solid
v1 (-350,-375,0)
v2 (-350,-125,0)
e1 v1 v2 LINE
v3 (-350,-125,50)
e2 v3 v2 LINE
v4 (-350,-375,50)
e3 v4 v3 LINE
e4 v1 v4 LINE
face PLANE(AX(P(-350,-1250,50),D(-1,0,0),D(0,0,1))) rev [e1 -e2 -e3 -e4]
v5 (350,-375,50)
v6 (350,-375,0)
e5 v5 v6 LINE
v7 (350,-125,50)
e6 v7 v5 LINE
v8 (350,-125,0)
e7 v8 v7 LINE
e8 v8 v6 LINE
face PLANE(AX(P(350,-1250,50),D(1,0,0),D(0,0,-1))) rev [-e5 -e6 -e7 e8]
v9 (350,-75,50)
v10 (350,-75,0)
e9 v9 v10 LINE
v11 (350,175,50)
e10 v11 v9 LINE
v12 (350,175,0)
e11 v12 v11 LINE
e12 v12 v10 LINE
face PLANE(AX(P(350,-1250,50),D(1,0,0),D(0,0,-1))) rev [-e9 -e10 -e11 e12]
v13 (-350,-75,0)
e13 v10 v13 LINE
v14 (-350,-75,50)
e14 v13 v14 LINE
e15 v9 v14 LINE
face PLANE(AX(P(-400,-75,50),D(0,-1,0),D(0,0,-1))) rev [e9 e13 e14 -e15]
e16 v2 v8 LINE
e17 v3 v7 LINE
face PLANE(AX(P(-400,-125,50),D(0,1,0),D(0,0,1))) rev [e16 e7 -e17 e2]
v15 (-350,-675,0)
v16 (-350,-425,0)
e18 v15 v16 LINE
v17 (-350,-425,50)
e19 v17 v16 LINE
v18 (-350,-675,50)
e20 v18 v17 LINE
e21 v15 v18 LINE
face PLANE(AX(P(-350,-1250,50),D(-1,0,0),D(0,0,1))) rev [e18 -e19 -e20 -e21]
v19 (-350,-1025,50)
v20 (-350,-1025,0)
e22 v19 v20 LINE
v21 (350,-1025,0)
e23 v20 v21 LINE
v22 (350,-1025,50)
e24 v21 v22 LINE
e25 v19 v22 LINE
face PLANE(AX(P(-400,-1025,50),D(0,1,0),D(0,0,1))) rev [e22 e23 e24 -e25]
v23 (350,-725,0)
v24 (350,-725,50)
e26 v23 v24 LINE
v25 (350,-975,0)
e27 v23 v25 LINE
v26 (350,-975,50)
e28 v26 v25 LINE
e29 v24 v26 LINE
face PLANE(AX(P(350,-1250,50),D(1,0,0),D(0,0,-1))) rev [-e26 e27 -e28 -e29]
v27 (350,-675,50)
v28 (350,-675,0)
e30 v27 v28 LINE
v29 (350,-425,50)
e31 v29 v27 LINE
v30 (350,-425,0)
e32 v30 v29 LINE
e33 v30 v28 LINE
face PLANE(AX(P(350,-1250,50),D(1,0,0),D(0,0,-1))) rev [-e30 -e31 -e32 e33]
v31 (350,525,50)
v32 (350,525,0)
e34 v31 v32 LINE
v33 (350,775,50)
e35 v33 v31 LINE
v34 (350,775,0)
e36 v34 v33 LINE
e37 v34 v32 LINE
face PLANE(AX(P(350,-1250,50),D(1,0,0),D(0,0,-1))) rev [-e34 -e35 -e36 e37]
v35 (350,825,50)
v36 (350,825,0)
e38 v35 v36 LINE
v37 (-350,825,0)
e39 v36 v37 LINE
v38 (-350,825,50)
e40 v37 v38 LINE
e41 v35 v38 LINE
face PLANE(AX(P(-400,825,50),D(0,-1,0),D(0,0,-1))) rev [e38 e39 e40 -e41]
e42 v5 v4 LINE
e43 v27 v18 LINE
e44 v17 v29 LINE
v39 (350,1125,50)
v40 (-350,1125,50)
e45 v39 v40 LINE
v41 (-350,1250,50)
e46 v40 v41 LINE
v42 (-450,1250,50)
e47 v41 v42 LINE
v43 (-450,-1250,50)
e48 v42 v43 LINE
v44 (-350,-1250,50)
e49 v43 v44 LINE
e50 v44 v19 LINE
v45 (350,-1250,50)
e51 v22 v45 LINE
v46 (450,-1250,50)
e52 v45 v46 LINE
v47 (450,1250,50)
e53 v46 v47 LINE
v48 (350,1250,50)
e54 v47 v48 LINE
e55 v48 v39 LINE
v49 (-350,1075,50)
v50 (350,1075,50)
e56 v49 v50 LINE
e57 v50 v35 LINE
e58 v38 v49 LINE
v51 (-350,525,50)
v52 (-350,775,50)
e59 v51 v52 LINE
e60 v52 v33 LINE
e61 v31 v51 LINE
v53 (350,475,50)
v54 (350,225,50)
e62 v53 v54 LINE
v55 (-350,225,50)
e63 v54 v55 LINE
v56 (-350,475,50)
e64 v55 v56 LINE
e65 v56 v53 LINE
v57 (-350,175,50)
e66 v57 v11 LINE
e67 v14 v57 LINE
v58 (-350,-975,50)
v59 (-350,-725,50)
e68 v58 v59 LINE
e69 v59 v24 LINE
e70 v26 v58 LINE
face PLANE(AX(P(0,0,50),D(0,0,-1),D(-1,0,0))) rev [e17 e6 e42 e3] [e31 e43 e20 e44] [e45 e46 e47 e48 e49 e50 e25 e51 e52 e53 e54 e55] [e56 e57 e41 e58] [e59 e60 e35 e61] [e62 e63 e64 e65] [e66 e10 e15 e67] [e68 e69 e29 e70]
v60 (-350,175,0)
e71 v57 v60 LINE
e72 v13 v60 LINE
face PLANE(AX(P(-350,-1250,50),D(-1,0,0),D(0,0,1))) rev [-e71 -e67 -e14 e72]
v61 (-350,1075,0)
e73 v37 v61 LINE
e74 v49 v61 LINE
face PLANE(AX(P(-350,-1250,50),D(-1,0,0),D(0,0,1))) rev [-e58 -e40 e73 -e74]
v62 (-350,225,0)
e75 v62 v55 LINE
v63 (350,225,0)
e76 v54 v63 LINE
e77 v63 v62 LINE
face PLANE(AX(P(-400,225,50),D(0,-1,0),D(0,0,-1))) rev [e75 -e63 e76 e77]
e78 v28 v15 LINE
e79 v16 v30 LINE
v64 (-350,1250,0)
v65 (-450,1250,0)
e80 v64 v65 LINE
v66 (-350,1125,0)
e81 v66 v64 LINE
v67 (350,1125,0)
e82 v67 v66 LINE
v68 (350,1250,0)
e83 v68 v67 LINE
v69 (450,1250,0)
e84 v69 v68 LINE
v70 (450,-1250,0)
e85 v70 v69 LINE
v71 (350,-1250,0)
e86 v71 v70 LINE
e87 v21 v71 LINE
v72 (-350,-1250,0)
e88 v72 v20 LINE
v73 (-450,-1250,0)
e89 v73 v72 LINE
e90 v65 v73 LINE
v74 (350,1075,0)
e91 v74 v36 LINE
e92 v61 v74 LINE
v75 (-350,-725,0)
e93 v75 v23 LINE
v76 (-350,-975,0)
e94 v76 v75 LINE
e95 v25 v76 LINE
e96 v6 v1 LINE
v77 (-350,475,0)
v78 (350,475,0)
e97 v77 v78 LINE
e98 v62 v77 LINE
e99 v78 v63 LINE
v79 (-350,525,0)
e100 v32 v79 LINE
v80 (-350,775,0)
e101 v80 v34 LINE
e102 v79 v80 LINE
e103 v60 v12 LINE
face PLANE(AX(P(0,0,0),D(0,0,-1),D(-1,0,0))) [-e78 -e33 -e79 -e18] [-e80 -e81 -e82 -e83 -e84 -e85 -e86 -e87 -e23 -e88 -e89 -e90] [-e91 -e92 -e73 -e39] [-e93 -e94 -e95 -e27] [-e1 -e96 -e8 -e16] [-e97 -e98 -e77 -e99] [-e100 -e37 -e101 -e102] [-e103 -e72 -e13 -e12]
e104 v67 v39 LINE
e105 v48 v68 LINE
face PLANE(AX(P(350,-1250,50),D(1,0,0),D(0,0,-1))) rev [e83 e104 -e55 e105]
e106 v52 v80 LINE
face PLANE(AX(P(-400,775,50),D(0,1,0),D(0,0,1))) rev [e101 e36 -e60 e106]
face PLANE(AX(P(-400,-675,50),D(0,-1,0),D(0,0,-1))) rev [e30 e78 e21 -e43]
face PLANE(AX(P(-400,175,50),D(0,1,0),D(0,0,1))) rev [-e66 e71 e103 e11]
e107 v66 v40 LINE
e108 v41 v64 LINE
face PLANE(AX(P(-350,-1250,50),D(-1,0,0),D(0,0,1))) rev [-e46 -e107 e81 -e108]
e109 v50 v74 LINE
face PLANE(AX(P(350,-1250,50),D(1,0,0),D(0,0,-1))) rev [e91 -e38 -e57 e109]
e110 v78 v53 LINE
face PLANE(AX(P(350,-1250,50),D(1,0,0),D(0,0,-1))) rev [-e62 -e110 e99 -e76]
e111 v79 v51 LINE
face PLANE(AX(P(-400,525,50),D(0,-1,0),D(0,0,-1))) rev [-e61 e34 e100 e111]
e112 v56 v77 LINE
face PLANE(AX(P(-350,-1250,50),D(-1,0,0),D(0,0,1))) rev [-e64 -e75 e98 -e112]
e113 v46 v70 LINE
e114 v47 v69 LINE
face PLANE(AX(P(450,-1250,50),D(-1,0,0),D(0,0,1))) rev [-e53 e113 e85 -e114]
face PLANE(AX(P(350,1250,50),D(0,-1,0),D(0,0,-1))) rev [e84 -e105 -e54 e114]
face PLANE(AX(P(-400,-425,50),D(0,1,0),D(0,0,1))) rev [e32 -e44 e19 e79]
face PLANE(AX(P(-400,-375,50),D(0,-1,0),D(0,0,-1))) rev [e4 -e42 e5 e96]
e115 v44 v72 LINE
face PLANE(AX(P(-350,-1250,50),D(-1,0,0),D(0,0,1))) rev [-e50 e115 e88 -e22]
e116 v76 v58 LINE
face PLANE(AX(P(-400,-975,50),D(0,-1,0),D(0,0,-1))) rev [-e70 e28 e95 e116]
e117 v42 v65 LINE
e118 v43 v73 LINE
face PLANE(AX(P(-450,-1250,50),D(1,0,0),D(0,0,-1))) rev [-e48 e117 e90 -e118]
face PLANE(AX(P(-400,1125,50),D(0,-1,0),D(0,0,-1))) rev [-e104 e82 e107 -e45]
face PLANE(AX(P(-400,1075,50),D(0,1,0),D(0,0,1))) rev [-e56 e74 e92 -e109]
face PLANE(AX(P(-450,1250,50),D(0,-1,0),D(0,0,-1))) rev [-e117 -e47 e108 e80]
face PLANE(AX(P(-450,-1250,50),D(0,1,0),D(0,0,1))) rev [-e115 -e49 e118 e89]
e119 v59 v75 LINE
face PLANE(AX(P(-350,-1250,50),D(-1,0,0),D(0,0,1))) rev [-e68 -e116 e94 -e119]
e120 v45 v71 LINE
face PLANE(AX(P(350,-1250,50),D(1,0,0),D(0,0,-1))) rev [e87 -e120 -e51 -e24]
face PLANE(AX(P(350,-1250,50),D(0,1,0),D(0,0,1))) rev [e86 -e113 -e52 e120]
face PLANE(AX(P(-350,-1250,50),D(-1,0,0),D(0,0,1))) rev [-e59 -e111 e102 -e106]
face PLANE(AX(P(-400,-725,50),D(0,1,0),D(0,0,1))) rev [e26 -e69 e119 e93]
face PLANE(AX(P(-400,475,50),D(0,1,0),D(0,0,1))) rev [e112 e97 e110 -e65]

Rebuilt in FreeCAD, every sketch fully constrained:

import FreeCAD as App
import Part
import Sketcher
Q = App.Units.Quantity

doc = App.newDocument("Part")
body = doc.addObject("PartDesign::Body", "Body")

sketch1 = body.newObject("Sketcher::SketchObject", "Sketch")
sketch1.AttachmentSupport = (doc.getObject("XY_Plane"), [""])
sketch1.MapMode = "FlatFace"
sketch1.addGeometry(Part.LineSegment(App.Vector(-450, 1250, 0), App.Vector(-450, -1250, 0)), False)
sketch1.addGeometry(Part.LineSegment(App.Vector(-450, -1250, 0), App.Vector(-350, -1250, 0)), False)
sketch1.addGeometry(Part.LineSegment(App.Vector(-350, -1250, 0), App.Vector(-350, 1250, 0)), False)
sketch1.addGeometry(Part.LineSegment(App.Vector(-350, 1250, 0), App.Vector(-450, 1250, 0)), False)
sketch1.addConstraint(Sketcher.Constraint("Coincident", 0, 2, 1, 1))
sketch1.addConstraint(Sketcher.Constraint("Coincident", 1, 2, 2, 1))
sketch1.addConstraint(Sketcher.Constraint("Coincident", 2, 2, 3, 1))
sketch1.addConstraint(Sketcher.Constraint("Coincident", 3, 2, 0, 1))
sketch1.addConstraint(Sketcher.Constraint("Vertical", 0))
sketch1.addConstraint(Sketcher.Constraint("Horizontal", 1))
sketch1.addConstraint(Sketcher.Constraint("Vertical", 2))
sketch1.addConstraint(Sketcher.Constraint("Horizontal", 3))
sketch1.addConstraint(Sketcher.Constraint("DistanceX", 1, 1, 1, 2, Q("100 mm")))
sketch1.addConstraint(Sketcher.Constraint("DistanceY", 0, 2, 0, 1, Q("2500 mm")))
sketch1.addConstraint(Sketcher.Constraint("DistanceX", 0, 2, -1, 1, Q("450 mm")))
sketch1.addConstraint(Sketcher.Constraint("DistanceY", 0, 2, -1, 1, Q("1250 mm")))
pad1 = body.newObject("PartDesign::Pad", "Pad")
pad1.Profile = sketch1
pad1.Length = 50
body2 = doc.addObject("PartDesign::Body", "Body001")

sketch2 = body2.newObject("Sketcher::SketchObject", "Sketch001")
sketch2.AttachmentSupport = (doc.getObject("XY_Plane001"), [""])
sketch2.MapMode = "FlatFace"
sketch2.addGeometry(Part.LineSegment(App.Vector(350, 1250, 0), App.Vector(350, -1250, 0)), False)
sketch2.addGeometry(Part.LineSegment(App.Vector(350, -1250, 0), App.Vector(450, -1250, 0)), False)
sketch2.addGeometry(Part.LineSegment(App.Vector(450, -1250, 0), App.Vector(450, 1250, 0)), False)
sketch2.addGeometry(Part.LineSegment(App.Vector(450, 1250, 0), App.Vector(350, 1250, 0)), False)
sketch2.addConstraint(Sketcher.Constraint("Coincident", 0, 2, 1, 1))
sketch2.addConstraint(Sketcher.Constraint("Coincident", 1, 2, 2, 1))
sketch2.addConstraint(Sketcher.Constraint("Coincident", 2, 2, 3, 1))
sketch2.addConstraint(Sketcher.Constraint("Coincident", 3, 2, 0, 1))
sketch2.addConstraint(Sketcher.Constraint("Vertical", 0))
sketch2.addConstraint(Sketcher.Constraint("Horizontal", 1))
sketch2.addConstraint(Sketcher.Constraint("Vertical", 2))
sketch2.addConstraint(Sketcher.Constraint("Horizontal", 3))
sketch2.addConstraint(Sketcher.Constraint("DistanceX", 1, 1, 1, 2, Q("100 mm")))
sketch2.addConstraint(Sketcher.Constraint("DistanceY", 0, 2, 0, 1, Q("2500 mm")))
sketch2.addConstraint(Sketcher.Constraint("DistanceX", -1, 1, 0, 2, Q("350 mm")))
sketch2.addConstraint(Sketcher.Constraint("DistanceY", 0, 2, -1, 1, Q("1250 mm")))
pad2 = body2.newObject("PartDesign::Pad", "Pad001")
pad2.Profile = sketch2
pad2.Length = 50
body.AllowCompound = True
doc.recompute()

boolean = body.newObject("PartDesign::Boolean", "Boolean")
boolean.Type = "Fuse"
boolean.addObjects([body2])

sketch3 = body.newObject("Sketcher::SketchObject", "Sketch002")
sketch3.AttachmentSupport = (doc.getObject("XY_Plane"), [""])
sketch3.MapMode = "FlatFace"
sketch3.addGeometry(Part.LineSegment(App.Vector(-400, 1125, 0), App.Vector(-400, 1075, 0)), False)
sketch3.addGeometry(Part.LineSegment(App.Vector(-400, 1075, 0), App.Vector(400, 1075, 0)), False)
sketch3.addGeometry(Part.LineSegment(App.Vector(400, 1075, 0), App.Vector(400, 1125, 0)), False)
sketch3.addGeometry(Part.LineSegment(App.Vector(400, 1125, 0), App.Vector(-400, 1125, 0)), False)
sketch3.addConstraint(Sketcher.Constraint("Coincident", 0, 2, 1, 1))
sketch3.addConstraint(Sketcher.Constraint("Coincident", 1, 2, 2, 1))
sketch3.addConstraint(Sketcher.Constraint("Coincident", 2, 2, 3, 1))
sketch3.addConstraint(Sketcher.Constraint("Coincident", 3, 2, 0, 1))
sketch3.addConstraint(Sketcher.Constraint("Vertical", 0))
sketch3.addConstraint(Sketcher.Constraint("Horizontal", 1))
sketch3.addConstraint(Sketcher.Constraint("Vertical", 2))
sketch3.addConstraint(Sketcher.Constraint("Horizontal", 3))
sketch3.addConstraint(Sketcher.Constraint("DistanceX", 1, 1, 1, 2, Q("800 mm")))
sketch3.addConstraint(Sketcher.Constraint("DistanceY", 0, 2, 0, 1, Q("50 mm")))
sketch3.addConstraint(Sketcher.Constraint("DistanceX", 0, 2, -1, 1, Q("400 mm")))
sketch3.addConstraint(Sketcher.Constraint("DistanceY", -1, 1, 0, 2, Q("1075 mm")))
pad3 = body.newObject("PartDesign::Pad", "Pad002")
pad3.Profile = sketch3
pad3.Length = 50

sketch4 = body.newObject("Sketcher::SketchObject", "Sketch003")
sketch4.AttachmentSupport = (doc.getObject("XY_Plane"), [""])
sketch4.MapMode = "FlatFace"
sketch4.addGeometry(Part.LineSegment(App.Vector(-400, 825, 0), App.Vector(-400, 775, 0)), False)
sketch4.addGeometry(Part.LineSegment(App.Vector(-400, 775, 0), App.Vector(400, 775, 0)), False)
sketch4.addGeometry(Part.LineSegment(App.Vector(400, 775, 0), App.Vector(400, 825, 0)), False)
sketch4.addGeometry(Part.LineSegment(App.Vector(400, 825, 0), App.Vector(-400, 825, 0)), False)
sketch4.addConstraint(Sketcher.Constraint("Coincident", 0, 2, 1, 1))
sketch4.addConstraint(Sketcher.Constraint("Coincident", 1, 2, 2, 1))
sketch4.addConstraint(Sketcher.Constraint("Coincident", 2, 2, 3, 1))
sketch4.addConstraint(Sketcher.Constraint("Coincident", 3, 2, 0, 1))
sketch4.addConstraint(Sketcher.Constraint("Vertical", 0))
sketch4.addConstraint(Sketcher.Constraint("Horizontal", 1))
sketch4.addConstraint(Sketcher.Constraint("Vertical", 2))
sketch4.addConstraint(Sketcher.Constraint("Horizontal", 3))
sketch4.addConstraint(Sketcher.Constraint("DistanceX", 1, 1, 1, 2, Q("800 mm")))
sketch4.addConstraint(Sketcher.Constraint("DistanceY", 0, 2, 0, 1, Q("50 mm")))
sketch4.addConstraint(Sketcher.Constraint("DistanceX", 0, 2, -1, 1, Q("400 mm")))
sketch4.addConstraint(Sketcher.Constraint("DistanceY", -1, 1, 0, 2, Q("775 mm")))
pad4 = body.newObject("PartDesign::Pad", "Pad003")
pad4.Profile = sketch4
pad4.Length = 50

sketch5 = body.newObject("Sketcher::SketchObject", "Sketch004")
sketch5.AttachmentSupport = (doc.getObject("XY_Plane"), [""])
sketch5.MapMode = "FlatFace"
sketch5.addGeometry(Part.LineSegment(App.Vector(-400, 525, 0), App.Vector(-400, 475, 0)), False)
sketch5.addGeometry(Part.LineSegment(App.Vector(-400, 475, 0), App.Vector(400, 475, 0)), False)
sketch5.addGeometry(Part.LineSegment(App.Vector(400, 475, 0), App.Vector(400, 525, 0)), False)
sketch5.addGeometry(Part.LineSegment(App.Vector(400, 525, 0), App.Vector(-400, 525, 0)), False)
sketch5.addConstraint(Sketcher.Constraint("Coincident", 0, 2, 1, 1))
sketch5.addConstraint(Sketcher.Constraint("Coincident", 1, 2, 2, 1))
sketch5.addConstraint(Sketcher.Constraint("Coincident", 2, 2, 3, 1))
sketch5.addConstraint(Sketcher.Constraint("Coincident", 3, 2, 0, 1))
sketch5.addConstraint(Sketcher.Constraint("Vertical", 0))
sketch5.addConstraint(Sketcher.Constraint("Horizontal", 1))
sketch5.addConstraint(Sketcher.Constraint("Vertical", 2))
sketch5.addConstraint(Sketcher.Constraint("Horizontal", 3))
sketch5.addConstraint(Sketcher.Constraint("DistanceX", 1, 1, 1, 2, Q("800 mm")))
sketch5.addConstraint(Sketcher.Constraint("DistanceY", 0, 2, 0, 1, Q("50 mm")))
sketch5.addConstraint(Sketcher.Constraint("DistanceX", 0, 2, -1, 1, Q("400 mm")))
sketch5.addConstraint(Sketcher.Constraint("DistanceY", -1, 1, 0, 2, Q("475 mm")))
pad5 = body.newObject("PartDesign::Pad", "Pad004")
pad5.Profile = sketch5
pad5.Length = 50

sketch6 = body.newObject("Sketcher::SketchObject", "Sketch005")
sketch6.AttachmentSupport = (doc.getObject("XY_Plane"), [""])
sketch6.MapMode = "FlatFace"
sketch6.addGeometry(Part.LineSegment(App.Vector(-400, 225, 0), App.Vector(-400, 175, 0)), False)
sketch6.addGeometry(Part.LineSegment(App.Vector(-400, 175, 0), App.Vector(400, 175, 0)), False)
sketch6.addGeometry(Part.LineSegment(App.Vector(400, 175, 0), App.Vector(400, 225, 0)), False)
sketch6.addGeometry(Part.LineSegment(App.Vector(400, 225, 0), App.Vector(-400, 225, 0)), False)
sketch6.addConstraint(Sketcher.Constraint("Coincident", 0, 2, 1, 1))
sketch6.addConstraint(Sketcher.Constraint("Coincident", 1, 2, 2, 1))
sketch6.addConstraint(Sketcher.Constraint("Coincident", 2, 2, 3, 1))
sketch6.addConstraint(Sketcher.Constraint("Coincident", 3, 2, 0, 1))
sketch6.addConstraint(Sketcher.Constraint("Vertical", 0))
sketch6.addConstraint(Sketcher.Constraint("Horizontal", 1))
sketch6.addConstraint(Sketcher.Constraint("Vertical", 2))
sketch6.addConstraint(Sketcher.Constraint("Horizontal", 3))
sketch6.addConstraint(Sketcher.Constraint("DistanceX", 1, 1, 1, 2, Q("800 mm")))
sketch6.addConstraint(Sketcher.Constraint("DistanceY", 0, 2, 0, 1, Q("50 mm")))
sketch6.addConstraint(Sketcher.Constraint("DistanceX", 0, 2, -1, 1, Q("400 mm")))
sketch6.addConstraint(Sketcher.Constraint("DistanceY", -1, 1, 0, 2, Q("175 mm")))
pad6 = body.newObject("PartDesign::Pad", "Pad005")
pad6.Profile = sketch6
pad6.Length = 50

sketch7 = body.newObject("Sketcher::SketchObject", "Sketch006")
sketch7.AttachmentSupport = (doc.getObject("XY_Plane"), [""])
sketch7.MapMode = "FlatFace"
sketch7.addGeometry(Part.LineSegment(App.Vector(-400, -75, 0), App.Vector(-400, -125, 0)), False)
sketch7.addGeometry(Part.LineSegment(App.Vector(-400, -125, 0), App.Vector(400, -125, 0)), False)
sketch7.addGeometry(Part.LineSegment(App.Vector(400, -125, 0), App.Vector(400, -75, 0)), False)
sketch7.addGeometry(Part.LineSegment(App.Vector(400, -75, 0), App.Vector(-400, -75, 0)), False)
sketch7.addConstraint(Sketcher.Constraint("Coincident", 0, 2, 1, 1))
sketch7.addConstraint(Sketcher.Constraint("Coincident", 1, 2, 2, 1))
sketch7.addConstraint(Sketcher.Constraint("Coincident", 2, 2, 3, 1))
sketch7.addConstraint(Sketcher.Constraint("Coincident", 3, 2, 0, 1))
sketch7.addConstraint(Sketcher.Constraint("Vertical", 0))
sketch7.addConstraint(Sketcher.Constraint("Horizontal", 1))
sketch7.addConstraint(Sketcher.Constraint("Vertical", 2))
sketch7.addConstraint(Sketcher.Constraint("Horizontal", 3))
sketch7.addConstraint(Sketcher.Constraint("DistanceX", 1, 1, 1, 2, Q("800 mm")))
sketch7.addConstraint(Sketcher.Constraint("DistanceY", 0, 2, 0, 1, Q("50 mm")))
sketch7.addConstraint(Sketcher.Constraint("DistanceX", 0, 2, -1, 1, Q("400 mm")))
sketch7.addConstraint(Sketcher.Constraint("DistanceY", 0, 2, -1, 1, Q("125 mm")))
pad7 = body.newObject("PartDesign::Pad", "Pad006")
pad7.Profile = sketch7
pad7.Length = 50

sketch8 = body.newObject("Sketcher::SketchObject", "Sketch007")
sketch8.AttachmentSupport = (doc.getObject("XY_Plane"), [""])
sketch8.MapMode = "FlatFace"
sketch8.addGeometry(Part.LineSegment(App.Vector(-400, -375, 0), App.Vector(-400, -425, 0)), False)
sketch8.addGeometry(Part.LineSegment(App.Vector(-400, -425, 0), App.Vector(400, -425, 0)), False)
sketch8.addGeometry(Part.LineSegment(App.Vector(400, -425, 0), App.Vector(400, -375, 0)), False)
sketch8.addGeometry(Part.LineSegment(App.Vector(400, -375, 0), App.Vector(-400, -375, 0)), False)
sketch8.addConstraint(Sketcher.Constraint("Coincident", 0, 2, 1, 1))
sketch8.addConstraint(Sketcher.Constraint("Coincident", 1, 2, 2, 1))
sketch8.addConstraint(Sketcher.Constraint("Coincident", 2, 2, 3, 1))
sketch8.addConstraint(Sketcher.Constraint("Coincident", 3, 2, 0, 1))
sketch8.addConstraint(Sketcher.Constraint("Vertical", 0))
sketch8.addConstraint(Sketcher.Constraint("Horizontal", 1))
sketch8.addConstraint(Sketcher.Constraint("Vertical", 2))
sketch8.addConstraint(Sketcher.Constraint("Horizontal", 3))
sketch8.addConstraint(Sketcher.Constraint("DistanceX", 1, 1, 1, 2, Q("800 mm")))
sketch8.addConstraint(Sketcher.Constraint("DistanceY", 0, 2, 0, 1, Q("50 mm")))
sketch8.addConstraint(Sketcher.Constraint("DistanceX", 0, 2, -1, 1, Q("400 mm")))
sketch8.addConstraint(Sketcher.Constraint("DistanceY", 0, 2, -1, 1, Q("425 mm")))
pad8 = body.newObject("PartDesign::Pad", "Pad007")
pad8.Profile = sketch8
pad8.Length = 50

sketch9 = body.newObject("Sketcher::SketchObject", "Sketch008")
sketch9.AttachmentSupport = (doc.getObject("XY_Plane"), [""])
sketch9.MapMode = "FlatFace"
sketch9.addGeometry(Part.LineSegment(App.Vector(-400, -675, 0), App.Vector(-400, -725, 0)), False)
sketch9.addGeometry(Part.LineSegment(App.Vector(-400, -725, 0), App.Vector(400, -725, 0)), False)
sketch9.addGeometry(Part.LineSegment(App.Vector(400, -725, 0), App.Vector(400, -675, 0)), False)
sketch9.addGeometry(Part.LineSegment(App.Vector(400, -675, 0), App.Vector(-400, -675, 0)), False)
sketch9.addConstraint(Sketcher.Constraint("Coincident", 0, 2, 1, 1))
sketch9.addConstraint(Sketcher.Constraint("Coincident", 1, 2, 2, 1))
sketch9.addConstraint(Sketcher.Constraint("Coincident", 2, 2, 3, 1))
sketch9.addConstraint(Sketcher.Constraint("Coincident", 3, 2, 0, 1))
sketch9.addConstraint(Sketcher.Constraint("Vertical", 0))
sketch9.addConstraint(Sketcher.Constraint("Horizontal", 1))
sketch9.addConstraint(Sketcher.Constraint("Vertical", 2))
sketch9.addConstraint(Sketcher.Constraint("Horizontal", 3))
sketch9.addConstraint(Sketcher.Constraint("DistanceX", 1, 1, 1, 2, Q("800 mm")))
sketch9.addConstraint(Sketcher.Constraint("DistanceY", 0, 2, 0, 1, Q("50 mm")))
sketch9.addConstraint(Sketcher.Constraint("DistanceX", 0, 2, -1, 1, Q("400 mm")))
sketch9.addConstraint(Sketcher.Constraint("DistanceY", 0, 2, -1, 1, Q("725 mm")))
pad9 = body.newObject("PartDesign::Pad", "Pad008")
pad9.Profile = sketch9
pad9.Length = 50

sketch10 = body.newObject("Sketcher::SketchObject", "Sketch009")
sketch10.AttachmentSupport = (doc.getObject("XY_Plane"), [""])
sketch10.MapMode = "FlatFace"
sketch10.addGeometry(Part.LineSegment(App.Vector(-400, -975, 0), App.Vector(-400, -1025, 0)), False)
sketch10.addGeometry(Part.LineSegment(App.Vector(-400, -1025, 0), App.Vector(400, -1025, 0)), False)
sketch10.addGeometry(Part.LineSegment(App.Vector(400, -1025, 0), App.Vector(400, -975, 0)), False)
sketch10.addGeometry(Part.LineSegment(App.Vector(400, -975, 0), App.Vector(-400, -975, 0)), False)
sketch10.addConstraint(Sketcher.Constraint("Coincident", 0, 2, 1, 1))
sketch10.addConstraint(Sketcher.Constraint("Coincident", 1, 2, 2, 1))
sketch10.addConstraint(Sketcher.Constraint("Coincident", 2, 2, 3, 1))
sketch10.addConstraint(Sketcher.Constraint("Coincident", 3, 2, 0, 1))
sketch10.addConstraint(Sketcher.Constraint("Vertical", 0))
sketch10.addConstraint(Sketcher.Constraint("Horizontal", 1))
sketch10.addConstraint(Sketcher.Constraint("Vertical", 2))
sketch10.addConstraint(Sketcher.Constraint("Horizontal", 3))
sketch10.addConstraint(Sketcher.Constraint("DistanceX", 1, 1, 1, 2, Q("800 mm")))
sketch10.addConstraint(Sketcher.Constraint("DistanceY", 0, 2, 0, 1, Q("50 mm")))
sketch10.addConstraint(Sketcher.Constraint("DistanceX", 0, 2, -1, 1, Q("400 mm")))
sketch10.addConstraint(Sketcher.Constraint("DistanceY", 0, 2, -1, 1, Q("1025 mm")))
pad10 = body.newObject("PartDesign::Pad", "Pad009")
pad10.Profile = sketch10
pad10.Length = 50

doc.recompute()
